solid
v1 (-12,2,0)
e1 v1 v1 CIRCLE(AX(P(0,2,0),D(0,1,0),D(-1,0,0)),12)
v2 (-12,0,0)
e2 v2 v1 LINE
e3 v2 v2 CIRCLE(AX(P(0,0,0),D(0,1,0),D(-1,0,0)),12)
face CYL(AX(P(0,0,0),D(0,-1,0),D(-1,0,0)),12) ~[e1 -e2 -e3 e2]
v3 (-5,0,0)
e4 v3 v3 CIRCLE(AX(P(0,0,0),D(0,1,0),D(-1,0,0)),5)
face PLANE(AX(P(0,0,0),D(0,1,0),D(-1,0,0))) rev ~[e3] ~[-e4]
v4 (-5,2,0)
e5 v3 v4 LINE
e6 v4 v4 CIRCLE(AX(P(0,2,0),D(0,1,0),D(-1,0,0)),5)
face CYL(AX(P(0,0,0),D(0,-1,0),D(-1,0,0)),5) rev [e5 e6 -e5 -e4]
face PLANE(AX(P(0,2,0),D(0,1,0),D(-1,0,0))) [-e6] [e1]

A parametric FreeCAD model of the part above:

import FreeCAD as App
import Part
import Sketcher

V = App.Vector
Q = App.Units.Quantity

doc = App.newDocument("Part")
body = doc.addObject("PartDesign::Body", "Body")

# Sketch on XZ plane
sketch1 = body.newObject("Sketcher::SketchObject", "Sketch")
sketch1.AttachmentSupport = (doc.getObject("XZ_Plane"), [""])
sketch1.MapMode = "FlatFace"
sketch1.addGeometry([
    Part.Circle(V(0, 0, 0), V(0, 0, 1), 12),
    Part.Circle(V(0, 0, 0), V(0, 0, 1), 5),
], False)
sketch1.addConstraint([
    Sketcher.Constraint("Coincident", 0, 3, -1, 1),
    Sketcher.Constraint("Coincident", 1, 3, -1, 1),
    Sketcher.Constraint("Diameter", 0, Q("24 mm")),
    Sketcher.Constraint("Diameter", 1, Q("10 mm")),
])
pad1 = body.newObject("PartDesign::Pad", "Pad")
pad1.Profile = sketch1
pad1.Length = 2
pad1.Reversed = True

doc.recompute()
